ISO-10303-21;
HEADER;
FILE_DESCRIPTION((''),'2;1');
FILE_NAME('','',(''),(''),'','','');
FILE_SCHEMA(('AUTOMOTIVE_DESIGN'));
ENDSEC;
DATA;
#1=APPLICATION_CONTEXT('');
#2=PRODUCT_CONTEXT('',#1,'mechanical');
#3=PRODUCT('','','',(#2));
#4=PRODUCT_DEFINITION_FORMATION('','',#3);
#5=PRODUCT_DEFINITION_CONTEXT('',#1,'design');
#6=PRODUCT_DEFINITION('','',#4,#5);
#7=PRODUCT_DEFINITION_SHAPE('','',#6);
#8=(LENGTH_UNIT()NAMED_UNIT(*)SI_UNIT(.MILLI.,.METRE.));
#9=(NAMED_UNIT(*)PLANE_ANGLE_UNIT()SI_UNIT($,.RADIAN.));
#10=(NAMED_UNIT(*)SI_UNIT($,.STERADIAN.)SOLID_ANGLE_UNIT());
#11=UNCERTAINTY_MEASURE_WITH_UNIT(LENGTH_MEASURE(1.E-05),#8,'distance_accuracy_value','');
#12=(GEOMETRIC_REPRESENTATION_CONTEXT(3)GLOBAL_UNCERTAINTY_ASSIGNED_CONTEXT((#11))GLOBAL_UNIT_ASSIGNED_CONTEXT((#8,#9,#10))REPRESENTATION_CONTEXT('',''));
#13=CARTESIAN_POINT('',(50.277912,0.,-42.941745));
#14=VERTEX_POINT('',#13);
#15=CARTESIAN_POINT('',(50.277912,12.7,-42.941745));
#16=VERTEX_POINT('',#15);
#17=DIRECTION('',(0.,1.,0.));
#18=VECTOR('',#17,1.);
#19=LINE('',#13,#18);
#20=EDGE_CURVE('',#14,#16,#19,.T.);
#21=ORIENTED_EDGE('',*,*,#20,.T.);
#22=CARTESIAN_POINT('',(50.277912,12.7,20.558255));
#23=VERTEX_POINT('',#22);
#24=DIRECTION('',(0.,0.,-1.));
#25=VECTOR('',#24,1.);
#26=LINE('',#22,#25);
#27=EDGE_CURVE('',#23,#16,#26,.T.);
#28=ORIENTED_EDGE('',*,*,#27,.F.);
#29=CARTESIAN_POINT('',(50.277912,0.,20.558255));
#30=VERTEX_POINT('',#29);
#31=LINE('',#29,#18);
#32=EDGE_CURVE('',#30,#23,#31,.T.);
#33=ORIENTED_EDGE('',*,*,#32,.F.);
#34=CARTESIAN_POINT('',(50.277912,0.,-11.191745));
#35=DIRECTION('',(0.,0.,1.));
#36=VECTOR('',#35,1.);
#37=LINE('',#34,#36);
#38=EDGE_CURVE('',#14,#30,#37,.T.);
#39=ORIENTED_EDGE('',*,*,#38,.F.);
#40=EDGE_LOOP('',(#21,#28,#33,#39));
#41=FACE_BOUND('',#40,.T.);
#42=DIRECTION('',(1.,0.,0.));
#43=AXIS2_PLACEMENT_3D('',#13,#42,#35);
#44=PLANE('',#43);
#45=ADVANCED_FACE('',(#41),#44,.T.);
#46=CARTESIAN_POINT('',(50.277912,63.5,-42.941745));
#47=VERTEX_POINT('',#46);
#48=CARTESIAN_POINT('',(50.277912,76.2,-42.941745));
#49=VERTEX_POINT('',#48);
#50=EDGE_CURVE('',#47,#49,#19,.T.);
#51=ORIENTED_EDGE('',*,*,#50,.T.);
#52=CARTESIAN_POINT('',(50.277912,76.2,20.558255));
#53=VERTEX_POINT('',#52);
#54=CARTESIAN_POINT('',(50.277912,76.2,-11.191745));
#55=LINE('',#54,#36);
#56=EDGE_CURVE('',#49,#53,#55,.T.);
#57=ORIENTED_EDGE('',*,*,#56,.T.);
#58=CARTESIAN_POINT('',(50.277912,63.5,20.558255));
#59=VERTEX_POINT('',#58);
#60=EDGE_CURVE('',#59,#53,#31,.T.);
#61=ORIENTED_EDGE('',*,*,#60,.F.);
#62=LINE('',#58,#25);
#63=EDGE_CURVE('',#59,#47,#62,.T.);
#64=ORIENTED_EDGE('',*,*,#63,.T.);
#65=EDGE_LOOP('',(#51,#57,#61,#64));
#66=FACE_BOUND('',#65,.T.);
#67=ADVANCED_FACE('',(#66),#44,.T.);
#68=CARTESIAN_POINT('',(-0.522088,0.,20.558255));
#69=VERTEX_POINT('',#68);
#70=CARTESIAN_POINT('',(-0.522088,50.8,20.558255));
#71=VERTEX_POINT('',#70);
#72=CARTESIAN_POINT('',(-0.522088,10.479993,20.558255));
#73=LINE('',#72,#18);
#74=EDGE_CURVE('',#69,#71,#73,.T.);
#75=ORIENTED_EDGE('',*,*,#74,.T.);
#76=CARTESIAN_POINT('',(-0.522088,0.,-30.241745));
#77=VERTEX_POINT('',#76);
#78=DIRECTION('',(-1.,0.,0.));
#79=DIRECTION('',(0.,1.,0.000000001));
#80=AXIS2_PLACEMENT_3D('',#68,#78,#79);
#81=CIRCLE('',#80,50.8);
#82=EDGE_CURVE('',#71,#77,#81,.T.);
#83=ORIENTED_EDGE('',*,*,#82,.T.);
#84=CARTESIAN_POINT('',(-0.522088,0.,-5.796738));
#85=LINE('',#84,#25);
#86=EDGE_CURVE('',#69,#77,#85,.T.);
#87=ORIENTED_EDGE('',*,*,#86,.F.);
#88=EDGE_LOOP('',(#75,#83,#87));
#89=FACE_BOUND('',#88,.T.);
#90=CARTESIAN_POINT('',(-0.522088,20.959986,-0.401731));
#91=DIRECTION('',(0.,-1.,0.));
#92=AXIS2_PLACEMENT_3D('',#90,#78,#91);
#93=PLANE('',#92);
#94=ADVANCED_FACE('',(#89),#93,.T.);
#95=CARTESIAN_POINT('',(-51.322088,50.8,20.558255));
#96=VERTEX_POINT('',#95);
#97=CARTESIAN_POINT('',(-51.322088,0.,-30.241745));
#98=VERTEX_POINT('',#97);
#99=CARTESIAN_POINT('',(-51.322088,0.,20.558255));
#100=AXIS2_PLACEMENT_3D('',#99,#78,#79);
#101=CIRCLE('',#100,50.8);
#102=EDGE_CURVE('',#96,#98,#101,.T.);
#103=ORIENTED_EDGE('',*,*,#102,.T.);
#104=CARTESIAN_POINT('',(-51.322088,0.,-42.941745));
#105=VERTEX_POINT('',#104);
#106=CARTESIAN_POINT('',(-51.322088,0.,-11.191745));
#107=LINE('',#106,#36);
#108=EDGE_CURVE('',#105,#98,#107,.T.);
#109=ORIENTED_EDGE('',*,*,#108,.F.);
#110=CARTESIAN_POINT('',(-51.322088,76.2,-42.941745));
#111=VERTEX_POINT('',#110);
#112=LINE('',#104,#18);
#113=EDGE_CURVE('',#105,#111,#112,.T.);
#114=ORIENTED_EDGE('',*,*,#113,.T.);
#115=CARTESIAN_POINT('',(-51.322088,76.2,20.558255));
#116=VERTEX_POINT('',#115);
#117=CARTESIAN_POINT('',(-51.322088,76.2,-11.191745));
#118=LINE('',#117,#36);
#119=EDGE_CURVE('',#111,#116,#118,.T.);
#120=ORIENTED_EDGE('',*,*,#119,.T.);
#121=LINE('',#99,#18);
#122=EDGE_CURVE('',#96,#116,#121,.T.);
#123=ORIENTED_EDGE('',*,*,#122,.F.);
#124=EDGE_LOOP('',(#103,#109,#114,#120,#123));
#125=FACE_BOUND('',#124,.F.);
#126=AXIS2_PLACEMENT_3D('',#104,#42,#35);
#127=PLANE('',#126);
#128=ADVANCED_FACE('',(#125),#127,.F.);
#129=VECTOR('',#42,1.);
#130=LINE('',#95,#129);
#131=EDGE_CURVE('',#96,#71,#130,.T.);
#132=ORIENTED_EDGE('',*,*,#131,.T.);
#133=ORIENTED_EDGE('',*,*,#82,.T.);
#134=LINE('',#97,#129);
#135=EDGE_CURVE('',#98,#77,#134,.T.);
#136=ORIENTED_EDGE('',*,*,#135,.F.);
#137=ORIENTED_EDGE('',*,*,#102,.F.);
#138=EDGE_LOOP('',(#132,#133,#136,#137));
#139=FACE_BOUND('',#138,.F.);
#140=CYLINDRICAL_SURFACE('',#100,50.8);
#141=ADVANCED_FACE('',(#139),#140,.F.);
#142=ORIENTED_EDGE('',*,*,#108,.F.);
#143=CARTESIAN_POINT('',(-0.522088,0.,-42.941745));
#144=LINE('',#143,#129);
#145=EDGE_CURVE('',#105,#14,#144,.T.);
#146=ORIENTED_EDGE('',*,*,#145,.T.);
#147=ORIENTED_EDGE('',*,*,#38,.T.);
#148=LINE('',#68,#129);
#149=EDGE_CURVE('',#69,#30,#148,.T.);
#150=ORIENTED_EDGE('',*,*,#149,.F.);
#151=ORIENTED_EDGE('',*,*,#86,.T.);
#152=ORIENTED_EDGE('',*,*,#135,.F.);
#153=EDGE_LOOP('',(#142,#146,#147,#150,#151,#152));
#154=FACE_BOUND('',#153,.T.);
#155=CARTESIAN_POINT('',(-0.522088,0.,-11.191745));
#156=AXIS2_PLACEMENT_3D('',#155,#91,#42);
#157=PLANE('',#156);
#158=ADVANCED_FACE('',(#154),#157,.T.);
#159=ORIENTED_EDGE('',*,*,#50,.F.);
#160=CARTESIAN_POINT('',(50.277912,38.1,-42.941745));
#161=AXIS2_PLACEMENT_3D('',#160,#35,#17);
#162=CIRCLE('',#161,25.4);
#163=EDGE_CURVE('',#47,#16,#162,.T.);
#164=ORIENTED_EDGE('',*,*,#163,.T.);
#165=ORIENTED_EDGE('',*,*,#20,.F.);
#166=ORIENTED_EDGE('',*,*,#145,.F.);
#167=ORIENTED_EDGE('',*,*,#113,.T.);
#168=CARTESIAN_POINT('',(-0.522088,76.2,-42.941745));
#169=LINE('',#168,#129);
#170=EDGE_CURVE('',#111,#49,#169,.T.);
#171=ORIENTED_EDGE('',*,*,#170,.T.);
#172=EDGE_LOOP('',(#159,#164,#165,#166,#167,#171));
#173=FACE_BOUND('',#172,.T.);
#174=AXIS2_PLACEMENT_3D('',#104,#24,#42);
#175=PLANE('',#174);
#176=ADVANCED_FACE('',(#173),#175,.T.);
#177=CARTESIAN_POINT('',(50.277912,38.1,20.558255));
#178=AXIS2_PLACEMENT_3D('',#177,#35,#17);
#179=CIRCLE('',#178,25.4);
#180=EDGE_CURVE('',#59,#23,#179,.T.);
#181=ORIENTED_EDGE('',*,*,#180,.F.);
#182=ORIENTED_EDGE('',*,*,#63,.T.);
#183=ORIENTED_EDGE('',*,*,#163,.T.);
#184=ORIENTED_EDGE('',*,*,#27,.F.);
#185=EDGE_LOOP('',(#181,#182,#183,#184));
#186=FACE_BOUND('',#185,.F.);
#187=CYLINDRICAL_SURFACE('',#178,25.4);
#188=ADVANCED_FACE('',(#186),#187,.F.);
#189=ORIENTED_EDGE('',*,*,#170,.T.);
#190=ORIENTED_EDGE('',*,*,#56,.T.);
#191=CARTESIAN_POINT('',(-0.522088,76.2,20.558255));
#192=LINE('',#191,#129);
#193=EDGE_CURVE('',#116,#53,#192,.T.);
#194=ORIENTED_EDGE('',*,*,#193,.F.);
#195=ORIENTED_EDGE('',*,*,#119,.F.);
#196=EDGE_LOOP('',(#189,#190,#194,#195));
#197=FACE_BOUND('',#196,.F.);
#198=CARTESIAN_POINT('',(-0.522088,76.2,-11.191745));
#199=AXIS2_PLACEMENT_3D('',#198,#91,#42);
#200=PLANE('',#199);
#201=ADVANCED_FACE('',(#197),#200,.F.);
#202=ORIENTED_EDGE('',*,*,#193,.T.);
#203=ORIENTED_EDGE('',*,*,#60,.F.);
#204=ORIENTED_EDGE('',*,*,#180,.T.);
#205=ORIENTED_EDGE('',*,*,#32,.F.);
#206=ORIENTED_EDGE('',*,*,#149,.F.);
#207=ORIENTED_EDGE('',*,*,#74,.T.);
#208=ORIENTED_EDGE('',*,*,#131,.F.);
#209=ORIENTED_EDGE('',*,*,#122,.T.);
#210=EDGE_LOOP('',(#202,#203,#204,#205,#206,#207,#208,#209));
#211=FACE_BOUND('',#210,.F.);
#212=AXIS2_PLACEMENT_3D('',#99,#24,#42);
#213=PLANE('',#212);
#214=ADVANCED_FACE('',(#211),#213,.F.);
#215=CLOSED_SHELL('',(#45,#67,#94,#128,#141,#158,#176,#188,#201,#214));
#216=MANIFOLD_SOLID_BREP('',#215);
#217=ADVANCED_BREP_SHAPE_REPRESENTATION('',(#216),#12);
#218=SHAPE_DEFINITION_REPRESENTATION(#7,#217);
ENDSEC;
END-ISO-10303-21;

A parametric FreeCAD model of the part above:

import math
import FreeCAD as App
import Part
import Sketcher
from FreeCAD import Vector
Q = App.Units.Quantity


def add_polygon(sketch, points):
    """Adds a closed chain of lines whose ends are joined by coincident constraints."""
    first, n = sketch.GeometryCount, len(points)
    for a, b in zip(points, points[1:] + points[:1]):
        sketch.addGeometry(Part.LineSegment(App.Vector(*a, 0), App.Vector(*b, 0)), False)
    for i in range(n):
        sketch.addConstraint(Sketcher.Constraint("Coincident", first + i, 2, first + (i + 1) % n, 1))

doc = App.newDocument("Part")
body = doc.addObject("PartDesign::Body", "Body")

# Sketch on XZ plane
sketch1 = body.newObject("Sketcher::SketchObject", "Sketch")
sketch1.AttachmentSupport = (doc.getObject("XZ_Plane"), [""])
sketch1.MapMode = "FlatFace"
add_polygon(sketch1, [(-51, 21), (-51, -43), (50, -43), (50, 21)])  # lines 0-3
sketch1.addConstraint(Sketcher.Constraint("Vertical", 0))
sketch1.addConstraint(Sketcher.Constraint("Horizontal", 1))
sketch1.addConstraint(Sketcher.Constraint("Vertical", 2))
sketch1.addConstraint(Sketcher.Constraint("Horizontal", 3))
sketch1.addConstraint(Sketcher.Constraint("DistanceX", 1, 1, 1, 2, Q("4 in")))
sketch1.addConstraint(Sketcher.Constraint("DistanceY", 0, 2, 0, 1, Q("2.5 in")))
sketch1.addConstraint(Sketcher.Constraint("DistanceX", 0, 2, -1, 1, Q("51.322088 mm")))
sketch1.addConstraint(Sketcher.Constraint("DistanceY", 0, 2, -1, 1, Q("42.941745 mm")))
pad1 = body.newObject("PartDesign::Pad", "Pad")
pad1.Profile = sketch1
pad1.Length = Q("3 in")
pad1.Reversed = True

# Sketch on XY plane
sketch2 = body.newObject("Sketcher::SketchObject", "Sketch001")
sketch2.AttachmentSupport = (doc.getObject("XY_Plane"), [""])
sketch2.MapMode = "FlatFace"
sketch2.AttachmentOffset = App.Placement(Vector(0, 0, 20.558255), App.Rotation())
sketch2.addGeometry(Part.ArcOfCircle(Part.Circle(Vector(50, 38, 0), Vector(0, 0, 1), 25), math.radians(90), math.radians(270)), False)
sketch2.addGeometry(Part.ArcOfCircle(Part.Circle(Vector(50, 38, 0), Vector(0, 0, 1), 25), math.radians(-90), math.radians(0)), False)
sketch2.addGeometry(Part.ArcOfCircle(Part.Circle(Vector(50, 38, 0), Vector(0, 0, 1), 25), math.radians(0), math.radians(90)), False)
sketch2.addConstraint(Sketcher.Constraint("Tangent", 0, 2, 1, 1))
sketch2.addConstraint(Sketcher.Constraint("Tangent", 1, 2, 2, 1))
sketch2.addConstraint(Sketcher.Constraint("Tangent", 2, 2, 0, 1))
sketch2.addConstraint(Sketcher.Constraint("Horizontal", 2, 3, 1, 2))
sketch2.addConstraint(Sketcher.Constraint("Vertical", 2, 3, 0, 2))
sketch2.addConstraint(Sketcher.Constraint("Vertical", 0, 2, 2, 2))
sketch2.addConstraint(Sketcher.Constraint("Radius", 0, Q("1 in")))
sketch2.addConstraint(Sketcher.Constraint("DistanceY", -1, 1, 0, 3, Q("1.5 in")))
sketch2.addConstraint(Sketcher.Constraint("DistanceX", -1, 1, 1, 3, Q("50.277911 mm")))
pocket1 = body.newObject("PartDesign::Pocket", "Pocket")
pocket1.Profile = sketch2
pocket1.Length = Q("2.5 in")

# Sketch on YZ plane
sketch3 = body.newObject("Sketcher::SketchObject", "Sketch002")
sketch3.AttachmentSupport = (doc.getObject("YZ_Plane"), [""])
sketch3.MapMode = "FlatFace"
sketch3.AttachmentOffset = App.Placement(Vector(0, 0, -51.322088), App.Rotation())
sketch3.addGeometry(Part.ArcOfCircle(Part.Circle(Vector(0, 21, 0), Vector(0, 0, 1), 51), math.radians(-90), math.radians(0)), False)
sketch3.addGeometry(Part.ArcOfCircle(Part.Circle(Vector(0, 21, 0), Vector(0, 0, 1), 51), math.radians(180), math.radians(270)), False)
sketch3.addGeometry(Part.ArcOfCircle(Part.Circle(Vector(0, 21, 0), Vector(0, 0, 1), 51), math.radians(0), math.radians(180)), False)
sketch3.addConstraint(Sketcher.Constraint("Tangent", 0, 1, 1, 2))
sketch3.addConstraint(Sketcher.Constraint("Tangent", 1, 1, 2, 2))
sketch3.addConstraint(Sketcher.Constraint("Tangent", 2, 1, 0, 2))
sketch3.addConstraint(Sketcher.Constraint("Symmetric", 1, 1, 2, 1, -2))
sketch3.addConstraint(Sketcher.Constraint("PointOnObject", 0, 1, -2))
sketch3.addConstraint(Sketcher.Constraint("Horizontal", 2, 3, 1, 1))
sketch3.addConstraint(Sketcher.Constraint("Radius", 0, Q("2 in")))
sketch3.addConstraint(Sketcher.Constraint("DistanceY", -1, 1, 0, 3, Q("20.558255 mm")))
pocket2 = body.newObject("PartDesign::Pocket", "Pocket001")
pocket2.Profile = sketch3
pocket2.Length = Q("2 in")
pocket2.Reversed = True

doc.recompute()
